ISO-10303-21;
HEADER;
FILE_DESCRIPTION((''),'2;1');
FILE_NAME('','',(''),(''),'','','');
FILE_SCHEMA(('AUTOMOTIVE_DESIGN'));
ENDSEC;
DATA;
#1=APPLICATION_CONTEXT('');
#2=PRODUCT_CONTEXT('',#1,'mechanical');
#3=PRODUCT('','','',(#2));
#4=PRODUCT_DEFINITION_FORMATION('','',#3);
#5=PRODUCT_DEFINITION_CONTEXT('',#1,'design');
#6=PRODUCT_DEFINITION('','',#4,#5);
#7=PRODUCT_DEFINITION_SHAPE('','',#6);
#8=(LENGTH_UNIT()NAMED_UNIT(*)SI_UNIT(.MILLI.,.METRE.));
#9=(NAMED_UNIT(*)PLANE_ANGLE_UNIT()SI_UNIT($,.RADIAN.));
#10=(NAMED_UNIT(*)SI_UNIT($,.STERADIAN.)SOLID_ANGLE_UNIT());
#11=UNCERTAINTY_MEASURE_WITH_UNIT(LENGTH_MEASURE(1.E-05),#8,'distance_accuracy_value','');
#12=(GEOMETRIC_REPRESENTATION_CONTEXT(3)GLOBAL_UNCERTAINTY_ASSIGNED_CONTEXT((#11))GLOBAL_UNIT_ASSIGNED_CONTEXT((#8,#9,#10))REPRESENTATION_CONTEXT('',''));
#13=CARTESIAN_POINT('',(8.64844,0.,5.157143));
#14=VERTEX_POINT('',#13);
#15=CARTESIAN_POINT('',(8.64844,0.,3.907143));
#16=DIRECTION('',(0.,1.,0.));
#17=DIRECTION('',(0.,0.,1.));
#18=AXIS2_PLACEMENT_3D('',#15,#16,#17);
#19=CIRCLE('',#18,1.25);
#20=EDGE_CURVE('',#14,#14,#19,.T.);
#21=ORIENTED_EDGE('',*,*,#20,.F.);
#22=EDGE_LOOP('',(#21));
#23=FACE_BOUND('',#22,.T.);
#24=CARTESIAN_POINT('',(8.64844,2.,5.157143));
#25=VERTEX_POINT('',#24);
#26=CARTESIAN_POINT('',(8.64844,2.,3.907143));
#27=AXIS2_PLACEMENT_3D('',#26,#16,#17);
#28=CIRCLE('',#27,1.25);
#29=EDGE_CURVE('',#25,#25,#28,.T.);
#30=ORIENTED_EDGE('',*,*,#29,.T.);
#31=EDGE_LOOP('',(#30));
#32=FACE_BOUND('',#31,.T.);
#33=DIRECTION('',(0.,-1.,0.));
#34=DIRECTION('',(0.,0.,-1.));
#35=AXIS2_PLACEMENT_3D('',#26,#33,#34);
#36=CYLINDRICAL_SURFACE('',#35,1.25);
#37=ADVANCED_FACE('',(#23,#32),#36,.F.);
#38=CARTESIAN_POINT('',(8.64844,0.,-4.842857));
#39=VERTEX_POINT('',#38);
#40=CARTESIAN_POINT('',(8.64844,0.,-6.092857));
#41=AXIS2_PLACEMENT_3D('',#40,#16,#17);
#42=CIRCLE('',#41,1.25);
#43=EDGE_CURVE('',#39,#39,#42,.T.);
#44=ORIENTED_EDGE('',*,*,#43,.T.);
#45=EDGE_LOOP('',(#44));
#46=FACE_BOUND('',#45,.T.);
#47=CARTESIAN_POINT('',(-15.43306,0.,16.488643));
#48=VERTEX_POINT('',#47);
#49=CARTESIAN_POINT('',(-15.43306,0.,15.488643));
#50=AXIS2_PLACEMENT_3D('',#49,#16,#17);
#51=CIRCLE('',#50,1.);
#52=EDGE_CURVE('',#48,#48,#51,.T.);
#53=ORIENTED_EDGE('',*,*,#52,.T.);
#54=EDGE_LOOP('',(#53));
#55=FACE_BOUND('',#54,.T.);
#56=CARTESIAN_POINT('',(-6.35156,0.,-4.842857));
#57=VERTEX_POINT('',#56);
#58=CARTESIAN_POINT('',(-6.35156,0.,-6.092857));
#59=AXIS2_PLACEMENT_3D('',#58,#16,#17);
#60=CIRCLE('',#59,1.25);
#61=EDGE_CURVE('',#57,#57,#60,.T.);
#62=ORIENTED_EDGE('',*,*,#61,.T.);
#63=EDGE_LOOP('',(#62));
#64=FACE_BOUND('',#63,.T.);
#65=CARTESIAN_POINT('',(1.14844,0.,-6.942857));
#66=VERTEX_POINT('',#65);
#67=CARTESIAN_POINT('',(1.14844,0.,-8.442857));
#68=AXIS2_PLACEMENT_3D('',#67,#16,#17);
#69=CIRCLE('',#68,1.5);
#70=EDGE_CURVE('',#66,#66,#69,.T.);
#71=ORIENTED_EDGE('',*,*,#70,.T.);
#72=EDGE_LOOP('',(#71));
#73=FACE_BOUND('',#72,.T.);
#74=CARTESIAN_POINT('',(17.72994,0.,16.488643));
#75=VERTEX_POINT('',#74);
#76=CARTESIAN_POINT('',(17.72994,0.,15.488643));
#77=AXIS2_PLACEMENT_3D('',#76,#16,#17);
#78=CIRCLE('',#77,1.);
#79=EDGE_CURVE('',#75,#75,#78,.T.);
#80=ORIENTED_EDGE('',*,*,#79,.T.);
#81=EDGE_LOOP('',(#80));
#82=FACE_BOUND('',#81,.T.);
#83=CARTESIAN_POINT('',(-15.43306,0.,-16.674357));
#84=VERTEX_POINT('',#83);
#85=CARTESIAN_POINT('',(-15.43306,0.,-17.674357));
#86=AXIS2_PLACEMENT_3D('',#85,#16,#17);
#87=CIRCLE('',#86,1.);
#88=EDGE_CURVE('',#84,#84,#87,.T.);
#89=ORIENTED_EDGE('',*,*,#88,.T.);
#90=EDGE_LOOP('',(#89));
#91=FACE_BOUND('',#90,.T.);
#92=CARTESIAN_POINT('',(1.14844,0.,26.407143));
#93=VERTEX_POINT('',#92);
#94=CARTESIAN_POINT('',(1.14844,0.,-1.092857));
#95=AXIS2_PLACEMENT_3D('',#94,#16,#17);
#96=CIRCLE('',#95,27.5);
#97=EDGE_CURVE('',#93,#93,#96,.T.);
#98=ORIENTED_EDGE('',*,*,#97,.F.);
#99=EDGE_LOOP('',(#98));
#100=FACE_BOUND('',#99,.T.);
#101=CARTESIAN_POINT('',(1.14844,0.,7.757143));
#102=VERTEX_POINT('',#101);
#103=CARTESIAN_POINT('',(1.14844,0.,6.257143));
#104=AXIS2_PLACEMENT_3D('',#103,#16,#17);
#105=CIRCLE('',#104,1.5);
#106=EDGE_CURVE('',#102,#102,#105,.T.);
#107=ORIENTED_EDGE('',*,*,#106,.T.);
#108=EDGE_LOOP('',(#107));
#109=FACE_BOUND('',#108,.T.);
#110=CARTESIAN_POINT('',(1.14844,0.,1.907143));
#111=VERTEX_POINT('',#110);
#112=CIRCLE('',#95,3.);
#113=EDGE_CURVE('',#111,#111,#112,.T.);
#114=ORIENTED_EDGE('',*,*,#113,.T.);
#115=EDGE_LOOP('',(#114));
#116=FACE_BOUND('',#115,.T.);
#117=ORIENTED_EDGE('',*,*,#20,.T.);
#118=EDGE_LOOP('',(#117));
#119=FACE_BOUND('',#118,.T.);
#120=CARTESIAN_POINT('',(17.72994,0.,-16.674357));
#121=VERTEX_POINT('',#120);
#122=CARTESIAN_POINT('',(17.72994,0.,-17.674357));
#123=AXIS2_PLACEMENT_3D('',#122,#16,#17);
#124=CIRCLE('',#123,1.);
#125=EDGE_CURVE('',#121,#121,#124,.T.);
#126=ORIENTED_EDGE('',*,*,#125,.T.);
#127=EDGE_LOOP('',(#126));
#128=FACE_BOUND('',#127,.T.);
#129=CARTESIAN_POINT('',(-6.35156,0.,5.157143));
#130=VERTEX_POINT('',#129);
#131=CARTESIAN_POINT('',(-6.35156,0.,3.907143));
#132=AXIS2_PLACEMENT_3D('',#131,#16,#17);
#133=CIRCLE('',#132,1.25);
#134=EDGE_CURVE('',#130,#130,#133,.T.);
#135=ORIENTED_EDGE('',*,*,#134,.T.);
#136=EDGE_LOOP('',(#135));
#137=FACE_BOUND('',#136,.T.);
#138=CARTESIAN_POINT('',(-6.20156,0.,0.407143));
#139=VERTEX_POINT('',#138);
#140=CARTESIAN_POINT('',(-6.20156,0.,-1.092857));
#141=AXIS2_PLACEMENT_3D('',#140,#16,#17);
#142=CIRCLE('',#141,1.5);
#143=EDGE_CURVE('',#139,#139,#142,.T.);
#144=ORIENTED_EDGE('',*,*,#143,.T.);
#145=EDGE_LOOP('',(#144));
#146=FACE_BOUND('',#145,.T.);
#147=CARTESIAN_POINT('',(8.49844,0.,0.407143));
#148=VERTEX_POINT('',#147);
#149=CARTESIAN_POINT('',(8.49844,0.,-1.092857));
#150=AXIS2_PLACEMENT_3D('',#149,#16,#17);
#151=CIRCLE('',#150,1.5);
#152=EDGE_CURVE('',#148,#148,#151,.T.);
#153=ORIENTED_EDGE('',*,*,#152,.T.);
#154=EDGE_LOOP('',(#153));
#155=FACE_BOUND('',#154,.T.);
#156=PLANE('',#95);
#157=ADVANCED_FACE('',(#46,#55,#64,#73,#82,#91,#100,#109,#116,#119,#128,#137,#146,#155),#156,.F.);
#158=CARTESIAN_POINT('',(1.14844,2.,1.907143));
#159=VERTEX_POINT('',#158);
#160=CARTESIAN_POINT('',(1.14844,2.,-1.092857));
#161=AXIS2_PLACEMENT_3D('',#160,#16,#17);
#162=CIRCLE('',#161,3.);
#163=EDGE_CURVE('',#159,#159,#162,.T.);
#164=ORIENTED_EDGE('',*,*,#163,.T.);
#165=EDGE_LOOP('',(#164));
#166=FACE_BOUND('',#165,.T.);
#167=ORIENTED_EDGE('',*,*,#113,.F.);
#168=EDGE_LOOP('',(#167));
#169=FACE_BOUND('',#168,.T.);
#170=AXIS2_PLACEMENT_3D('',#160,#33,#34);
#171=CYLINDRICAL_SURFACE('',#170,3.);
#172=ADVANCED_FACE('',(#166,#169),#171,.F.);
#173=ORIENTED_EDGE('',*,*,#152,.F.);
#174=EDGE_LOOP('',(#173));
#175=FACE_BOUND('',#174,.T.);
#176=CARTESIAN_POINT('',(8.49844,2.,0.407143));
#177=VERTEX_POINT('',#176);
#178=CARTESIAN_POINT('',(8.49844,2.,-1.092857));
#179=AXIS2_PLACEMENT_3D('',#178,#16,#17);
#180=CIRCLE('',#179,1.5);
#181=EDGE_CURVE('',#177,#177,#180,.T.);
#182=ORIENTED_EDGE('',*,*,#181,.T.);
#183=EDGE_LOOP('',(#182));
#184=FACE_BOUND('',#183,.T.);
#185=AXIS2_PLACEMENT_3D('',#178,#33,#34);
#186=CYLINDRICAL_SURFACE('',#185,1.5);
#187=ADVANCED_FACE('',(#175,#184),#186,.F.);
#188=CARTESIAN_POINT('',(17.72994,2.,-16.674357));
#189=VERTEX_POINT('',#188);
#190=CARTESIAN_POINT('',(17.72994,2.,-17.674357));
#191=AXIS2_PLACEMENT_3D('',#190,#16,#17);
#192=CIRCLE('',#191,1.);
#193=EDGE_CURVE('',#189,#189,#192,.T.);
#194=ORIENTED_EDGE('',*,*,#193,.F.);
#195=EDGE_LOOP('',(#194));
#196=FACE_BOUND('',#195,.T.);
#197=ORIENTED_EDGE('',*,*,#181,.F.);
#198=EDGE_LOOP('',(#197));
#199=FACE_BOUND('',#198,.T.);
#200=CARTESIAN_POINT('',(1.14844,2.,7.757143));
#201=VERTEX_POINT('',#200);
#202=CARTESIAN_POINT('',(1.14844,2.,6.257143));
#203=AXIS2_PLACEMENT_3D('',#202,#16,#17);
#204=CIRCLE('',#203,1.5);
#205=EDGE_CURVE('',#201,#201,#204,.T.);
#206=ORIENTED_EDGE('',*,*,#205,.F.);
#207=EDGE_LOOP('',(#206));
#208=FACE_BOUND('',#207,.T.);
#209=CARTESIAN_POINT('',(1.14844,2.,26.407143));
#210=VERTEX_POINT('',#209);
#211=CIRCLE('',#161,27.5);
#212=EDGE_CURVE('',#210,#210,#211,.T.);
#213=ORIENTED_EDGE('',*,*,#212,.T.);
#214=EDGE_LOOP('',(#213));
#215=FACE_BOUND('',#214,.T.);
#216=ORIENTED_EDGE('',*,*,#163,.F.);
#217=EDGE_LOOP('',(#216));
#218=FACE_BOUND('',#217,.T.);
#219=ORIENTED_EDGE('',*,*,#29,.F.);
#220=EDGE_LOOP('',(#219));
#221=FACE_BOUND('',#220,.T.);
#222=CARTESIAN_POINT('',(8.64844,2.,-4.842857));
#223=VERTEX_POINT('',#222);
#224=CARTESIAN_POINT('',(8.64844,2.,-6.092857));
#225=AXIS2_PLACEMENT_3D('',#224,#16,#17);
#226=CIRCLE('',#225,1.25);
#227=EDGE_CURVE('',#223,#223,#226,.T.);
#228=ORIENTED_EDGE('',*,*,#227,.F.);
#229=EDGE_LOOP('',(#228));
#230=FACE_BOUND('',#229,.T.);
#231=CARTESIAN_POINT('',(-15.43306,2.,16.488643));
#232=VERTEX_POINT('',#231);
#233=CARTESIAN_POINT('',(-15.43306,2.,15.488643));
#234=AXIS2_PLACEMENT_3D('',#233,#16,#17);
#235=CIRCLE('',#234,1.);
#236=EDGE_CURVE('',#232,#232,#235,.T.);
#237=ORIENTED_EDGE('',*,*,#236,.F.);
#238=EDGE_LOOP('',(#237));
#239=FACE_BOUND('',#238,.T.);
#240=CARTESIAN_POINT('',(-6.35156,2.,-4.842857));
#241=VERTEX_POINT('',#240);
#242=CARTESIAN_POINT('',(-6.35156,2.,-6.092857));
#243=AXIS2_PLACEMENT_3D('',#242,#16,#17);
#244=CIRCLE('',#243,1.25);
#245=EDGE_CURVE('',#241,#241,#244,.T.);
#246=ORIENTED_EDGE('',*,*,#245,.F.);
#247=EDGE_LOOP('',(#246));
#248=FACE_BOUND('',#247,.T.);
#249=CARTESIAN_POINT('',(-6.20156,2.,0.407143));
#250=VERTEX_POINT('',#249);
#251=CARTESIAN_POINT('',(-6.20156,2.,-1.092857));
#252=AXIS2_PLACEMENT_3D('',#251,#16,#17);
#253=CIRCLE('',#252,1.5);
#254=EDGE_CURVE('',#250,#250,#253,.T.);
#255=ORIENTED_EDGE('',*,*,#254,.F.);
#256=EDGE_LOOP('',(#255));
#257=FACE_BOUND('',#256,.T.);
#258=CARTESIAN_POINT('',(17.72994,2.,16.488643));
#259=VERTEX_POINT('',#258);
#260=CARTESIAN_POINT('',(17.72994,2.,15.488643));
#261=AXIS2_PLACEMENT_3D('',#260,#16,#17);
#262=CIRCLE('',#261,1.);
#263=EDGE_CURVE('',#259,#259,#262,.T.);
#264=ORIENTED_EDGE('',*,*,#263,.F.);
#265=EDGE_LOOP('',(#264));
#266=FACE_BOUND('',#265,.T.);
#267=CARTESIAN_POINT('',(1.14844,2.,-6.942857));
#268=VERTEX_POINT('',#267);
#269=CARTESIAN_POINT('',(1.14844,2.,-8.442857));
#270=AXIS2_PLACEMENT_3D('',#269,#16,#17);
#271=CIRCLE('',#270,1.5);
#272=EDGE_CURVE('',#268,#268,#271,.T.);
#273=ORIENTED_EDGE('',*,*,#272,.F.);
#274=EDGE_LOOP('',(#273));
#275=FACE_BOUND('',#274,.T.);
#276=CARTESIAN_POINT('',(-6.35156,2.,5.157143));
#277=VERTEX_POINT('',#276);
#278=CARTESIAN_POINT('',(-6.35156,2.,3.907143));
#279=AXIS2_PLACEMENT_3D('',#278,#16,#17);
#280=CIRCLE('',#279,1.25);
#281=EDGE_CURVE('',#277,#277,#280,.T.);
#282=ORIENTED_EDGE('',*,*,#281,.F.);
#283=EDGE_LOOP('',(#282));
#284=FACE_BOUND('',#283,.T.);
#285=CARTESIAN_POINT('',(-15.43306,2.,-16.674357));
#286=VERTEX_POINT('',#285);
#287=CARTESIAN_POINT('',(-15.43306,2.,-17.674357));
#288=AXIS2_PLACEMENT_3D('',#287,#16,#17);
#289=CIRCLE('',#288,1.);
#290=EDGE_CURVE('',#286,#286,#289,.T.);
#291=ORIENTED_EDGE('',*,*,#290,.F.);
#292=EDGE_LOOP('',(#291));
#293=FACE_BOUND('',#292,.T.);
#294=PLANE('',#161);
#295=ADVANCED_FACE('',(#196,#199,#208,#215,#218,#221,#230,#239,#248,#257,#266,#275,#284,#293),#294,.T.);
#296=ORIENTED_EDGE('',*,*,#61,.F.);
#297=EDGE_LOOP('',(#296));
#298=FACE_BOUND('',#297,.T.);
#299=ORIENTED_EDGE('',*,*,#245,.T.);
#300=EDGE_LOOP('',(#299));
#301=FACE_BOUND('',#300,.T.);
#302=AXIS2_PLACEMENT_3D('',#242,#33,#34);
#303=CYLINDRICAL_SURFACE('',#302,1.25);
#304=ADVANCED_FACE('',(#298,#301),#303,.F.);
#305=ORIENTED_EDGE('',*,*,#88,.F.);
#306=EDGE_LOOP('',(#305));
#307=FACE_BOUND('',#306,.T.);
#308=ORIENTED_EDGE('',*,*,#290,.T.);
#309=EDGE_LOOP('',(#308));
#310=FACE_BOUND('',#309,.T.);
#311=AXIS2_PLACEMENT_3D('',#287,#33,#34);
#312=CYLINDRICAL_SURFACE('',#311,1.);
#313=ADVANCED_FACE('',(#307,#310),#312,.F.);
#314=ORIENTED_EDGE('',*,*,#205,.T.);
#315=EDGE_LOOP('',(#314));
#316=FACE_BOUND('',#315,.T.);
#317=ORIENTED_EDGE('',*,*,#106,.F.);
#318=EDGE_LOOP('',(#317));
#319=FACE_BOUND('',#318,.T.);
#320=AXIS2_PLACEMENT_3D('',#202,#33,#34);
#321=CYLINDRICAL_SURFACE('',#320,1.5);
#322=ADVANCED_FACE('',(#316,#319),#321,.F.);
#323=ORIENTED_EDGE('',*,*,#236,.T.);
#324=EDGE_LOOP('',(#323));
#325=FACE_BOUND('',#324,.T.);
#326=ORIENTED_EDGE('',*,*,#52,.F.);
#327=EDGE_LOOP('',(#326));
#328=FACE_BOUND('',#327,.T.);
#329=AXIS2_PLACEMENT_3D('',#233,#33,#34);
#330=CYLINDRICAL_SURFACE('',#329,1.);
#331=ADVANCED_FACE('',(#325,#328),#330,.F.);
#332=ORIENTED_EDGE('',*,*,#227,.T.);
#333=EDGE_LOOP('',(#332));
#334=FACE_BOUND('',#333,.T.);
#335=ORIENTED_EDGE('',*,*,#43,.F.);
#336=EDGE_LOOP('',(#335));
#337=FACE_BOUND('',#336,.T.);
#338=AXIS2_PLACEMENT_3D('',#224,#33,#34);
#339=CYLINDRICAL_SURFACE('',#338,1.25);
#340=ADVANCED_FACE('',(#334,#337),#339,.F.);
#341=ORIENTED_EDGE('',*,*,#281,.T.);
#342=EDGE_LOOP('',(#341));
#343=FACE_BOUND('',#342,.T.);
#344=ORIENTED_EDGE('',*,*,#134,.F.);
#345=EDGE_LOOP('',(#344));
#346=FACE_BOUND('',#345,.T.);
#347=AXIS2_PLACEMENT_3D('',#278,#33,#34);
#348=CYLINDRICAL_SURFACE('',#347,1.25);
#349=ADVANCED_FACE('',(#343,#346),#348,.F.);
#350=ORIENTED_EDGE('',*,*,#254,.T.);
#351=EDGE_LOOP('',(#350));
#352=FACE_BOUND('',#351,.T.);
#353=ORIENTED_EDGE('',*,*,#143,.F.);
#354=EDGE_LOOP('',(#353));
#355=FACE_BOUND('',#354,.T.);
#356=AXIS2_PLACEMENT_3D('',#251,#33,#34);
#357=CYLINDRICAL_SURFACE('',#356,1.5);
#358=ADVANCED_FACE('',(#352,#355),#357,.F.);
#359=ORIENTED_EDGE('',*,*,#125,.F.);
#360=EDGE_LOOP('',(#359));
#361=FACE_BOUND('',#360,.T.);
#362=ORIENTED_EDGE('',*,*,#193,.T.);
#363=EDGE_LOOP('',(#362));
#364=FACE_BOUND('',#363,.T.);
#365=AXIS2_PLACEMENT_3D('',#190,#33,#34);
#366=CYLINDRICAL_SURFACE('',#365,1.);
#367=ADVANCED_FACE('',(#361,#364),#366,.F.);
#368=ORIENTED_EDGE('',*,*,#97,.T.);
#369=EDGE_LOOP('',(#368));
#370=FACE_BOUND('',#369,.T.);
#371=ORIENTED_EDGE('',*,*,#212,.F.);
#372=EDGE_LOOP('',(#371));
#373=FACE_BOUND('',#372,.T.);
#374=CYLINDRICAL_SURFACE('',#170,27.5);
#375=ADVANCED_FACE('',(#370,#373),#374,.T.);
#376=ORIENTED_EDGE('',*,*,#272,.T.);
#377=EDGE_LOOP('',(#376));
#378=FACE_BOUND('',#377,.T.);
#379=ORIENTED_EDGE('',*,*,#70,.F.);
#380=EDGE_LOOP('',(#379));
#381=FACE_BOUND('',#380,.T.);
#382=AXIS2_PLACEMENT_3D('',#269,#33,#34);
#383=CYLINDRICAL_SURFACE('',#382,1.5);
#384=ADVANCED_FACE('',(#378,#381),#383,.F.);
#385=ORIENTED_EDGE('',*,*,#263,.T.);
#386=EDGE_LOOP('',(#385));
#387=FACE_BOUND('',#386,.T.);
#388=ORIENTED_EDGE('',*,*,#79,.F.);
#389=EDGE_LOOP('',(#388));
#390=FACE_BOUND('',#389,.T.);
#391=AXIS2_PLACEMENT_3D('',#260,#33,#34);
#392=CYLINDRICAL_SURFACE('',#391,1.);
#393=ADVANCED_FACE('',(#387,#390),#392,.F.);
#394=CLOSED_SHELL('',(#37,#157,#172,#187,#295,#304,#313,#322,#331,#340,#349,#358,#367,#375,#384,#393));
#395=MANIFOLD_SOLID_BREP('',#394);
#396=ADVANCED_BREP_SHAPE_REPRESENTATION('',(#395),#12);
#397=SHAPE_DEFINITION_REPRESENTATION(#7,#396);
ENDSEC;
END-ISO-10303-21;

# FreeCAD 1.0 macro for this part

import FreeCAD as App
import Part
import Sketcher
from FreeCAD import Vector

doc = App.newDocument("Part")
body = doc.addObject("PartDesign::Body", "Body")

sketch1 = body.newObject("Sketcher::SketchObject", "Sketch")
sketch1.AttachmentSupport = (doc.getObject("XZ_Plane"), [""])
sketch1.MapMode = "FlatFace"
sketch1.addGeometry(Part.Circle(Vector(1.14844, -1.092857, 0), Vector(0, 0, 1), 27.5), False)
sketch1.addGeometry(Part.Circle(Vector(-15.43306, -17.674357, 0), Vector(0, 0, 1), 1), False)
sketch1.addGeometry(Part.Circle(Vector(-6.35156, -6.092857, 0), Vector(0, 0, 1), 1.25), False)
sketch1.addGeometry(Part.Circle(Vector(-15.43306, 15.488643, 0), Vector(0, 0, 1), 1), False)
sketch1.addGeometry(Part.Circle(Vector(-6.20156, -1.092857, 0), Vector(0, 0, 1), 1.5), False)
sketch1.addGeometry(Part.Circle(Vector(-6.35156, 3.907143, 0), Vector(0, 0, 1), 1.25), False)
sketch1.addGeometry(Part.Circle(Vector(1.14844, -8.442857, 0), Vector(0, 0, 1), 1.5), False)
sketch1.addGeometry(Part.Circle(Vector(8.64844, -6.092857, 0), Vector(0, 0, 1), 1.25), False)
sketch1.addGeometry(Part.Circle(Vector(17.72994, -17.674357, 0), Vector(0, 0, 1), 1), False)
sketch1.addGeometry(Part.Circle(Vector(1.14844, -1.092857, 0), Vector(0, 0, 1), 3), False)
sketch1.addGeometry(Part.Circle(Vector(1.14844, 6.257143, 0), Vector(0, 0, 1), 1.5), False)
sketch1.addGeometry(Part.Circle(Vector(8.49844, -1.092857, 0), Vector(0, 0, 1), 1.5), False)
sketch1.addGeometry(Part.Circle(Vector(8.64844, 3.907143, 0), Vector(0, 0, 1), 1.25), False)
sketch1.addGeometry(Part.Circle(Vector(17.72994, 15.488643, 0), Vector(0, 0, 1), 1), False)
sketch1.addConstraint(Sketcher.Constraint("Coincident", 9, 3, 0, 3))
sketch1.addConstraint(Sketcher.Constraint("Equal", 1, 3))
sketch1.addConstraint(Sketcher.Constraint("Equal", 2, 5))
sketch1.addConstraint(Sketcher.Constraint("Equal", 4, 6))
sketch1.addConstraint(Sketcher.Constraint("Equal", 5, 7))
sketch1.addConstraint(Sketcher.Constraint("Equal", 3, 8))
sketch1.addConstraint(Sketcher.Constraint("Equal", 6, 10))
sketch1.addConstraint(Sketcher.Constraint("Equal", 10, 11))
sketch1.addConstraint(Sketcher.Constraint("Equal", 7, 12))
sketch1.addConstraint(Sketcher.Constraint("Equal", 8, 13))
sketch1.addConstraint(Sketcher.Constraint("Horizontal", 0, 3, 4, 3))
sketch1.addConstraint(Sketcher.Constraint("Horizontal", 2, 3, 7, 3))
sketch1.addConstraint(Sketcher.Constraint("Horizontal", 1, 3, 8, 3))
sketch1.addConstraint(Sketcher.Constraint("Horizontal", 9, 3, 11, 3))
sketch1.addConstraint(Sketcher.Constraint("Horizontal", 5, 3, 12, 3))
sketch1.addConstraint(Sketcher.Constraint("Horizontal", 3, 3, 13, 3))
sketch1.addConstraint(Sketcher.Constraint("Vertical", 1, 3, 3, 3))
sketch1.addConstraint(Sketcher.Constraint("Vertical", 2, 3, 5, 3))
sketch1.addConstraint(Sketcher.Constraint("Vertical", 0, 3, 6, 3))
sketch1.addConstraint(Sketcher.Constraint("Vertical", 9, 3, 10, 3))
sketch1.addConstraint(Sketcher.Constraint("Vertical", 7, 3, 12, 3))
sketch1.addConstraint(Sketcher.Constraint("Vertical", 8, 3, 13, 3))
sketch1.addConstraint(Sketcher.Constraint("Diameter", 0, 55.0))
sketch1.addConstraint(Sketcher.Constraint("Diameter", 1, 2.0))
sketch1.addConstraint(Sketcher.Constraint("Diameter", 4, 3.0))
sketch1.addConstraint(Sketcher.Constraint("Diameter", 9, 6.0))
sketch1.addConstraint(Sketcher.Constraint("Diameter", 2, 2.5))
sketch1.addConstraint(Sketcher.Constraint("DistanceY", 2, 3, 0, 3, 5.0))
sketch1.addConstraint(Sketcher.Constraint("DistanceY", 4, 3, 5, 3, 5.0))
sketch1.addConstraint(Sketcher.Constraint("DistanceX", 2, 3, 7, 3, 15.0))
sketch1.addConstraint(Sketcher.Constraint("DistanceX", 2, 3, 0, 3, 7.5))
sketch1.addConstraint(Sketcher.Constraint("DistanceX", 2, 3, 4, 3, 0.15))
sketch1.addConstraint(Sketcher.Constraint("DistanceY", 6, 3, 0, 3, 7.35))
sketch1.addConstraint(Sketcher.Constraint("DistanceY", 0, 3, 10, 3, 7.35))
sketch1.addConstraint(Sketcher.Constraint("DistanceX", 11, 3, 7, 3, 0.15))
sketch1.addConstraint(Sketcher.Constraint("DistanceY", 1, 3, 3, 3, 33.163))
sketch1.addConstraint(Sketcher.Constraint("DistanceX", 1, 3, 0, 3, 16.5815))
sketch1.addConstraint(Sketcher.Constraint("DistanceY", 1, 3, 0, 3, 16.5815))
sketch1.addConstraint(Sketcher.Constraint("DistanceX", 7, 3, 8, 3, 9.0815))
sketch1.addConstraint(Sketcher.Constraint("DistanceX", -1, 1, 0, 3, 1.14844))
sketch1.addConstraint(Sketcher.Constraint("DistanceY", 0, 3, -1, 1, 1.092857))
pad1 = body.newObject("PartDesign::Pad", "Pad")
pad1.Profile = sketch1
pad1.Length = 2
pad1.Reversed = True

doc.recompute()
